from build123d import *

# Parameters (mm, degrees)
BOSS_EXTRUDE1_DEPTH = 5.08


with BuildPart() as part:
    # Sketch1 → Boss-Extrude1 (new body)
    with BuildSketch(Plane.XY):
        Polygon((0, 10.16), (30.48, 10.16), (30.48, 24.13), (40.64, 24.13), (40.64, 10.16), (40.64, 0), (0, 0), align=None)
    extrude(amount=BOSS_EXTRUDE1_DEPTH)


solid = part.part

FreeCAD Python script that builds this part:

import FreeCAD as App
import Part
import Sketcher
from FreeCAD import Vector
Q = App.Units.Quantity

doc = App.newDocument("Part")
params = doc.addObject("Spreadsheet::Sheet", "Params")
for row, (alias, value) in enumerate([
    ("sketch1_width", "1.2 in"),
    ("sketch1_width2", "1.6 in"),
    ("sketch1_height", "0.95 in"),
    ("pad1_length", "0.2 in"),
], start=1):
    params.set(f"A{row}", alias)
    params.set(f"B{row}", "=" + value)
    params.setAlias(f"B{row}", alias)

body = doc.addObject("PartDesign::Body", "Body")

sketch1 = body.newObject("Sketcher::SketchObject", "Sketch")
sketch1.AttachmentSupport = (doc.getObject("XY_Plane"), [""])
sketch1.MapMode = "FlatFace"
sketch1.addGeometry([
    Part.LineSegment(Vector(30.48, 10.16, 0), Vector(0, 10.16, 0)),
    Part.LineSegment(Vector(0, 10.16, 0), Vector(0, 0, 0)),
    Part.LineSegment(Vector(0, 0, 0), Vector(40.64, 0, 0)),
    Part.LineSegment(Vector(40.64, 0, 0), Vector(40.64, 24.13, 0)),
    Part.LineSegment(Vector(40.64, 24.13, 0), Vector(30.48, 24.13, 0)),
    Part.LineSegment(Vector(30.48, 24.13, 0), Vector(30.48, 10.16, 0)),
], False)
sketch1.addConstraint([
    Sketcher.Constraint("Coincident", 0, 2, 1, 1),
    Sketcher.Constraint("Coincident", 1, 2, 2, 1),
    Sketcher.Constraint("Coincident", 2, 2, 3, 1),
    Sketcher.Constraint("Coincident", 3, 2, 4, 1),
    Sketcher.Constraint("Coincident", 4, 2, 5, 1),
    Sketcher.Constraint("Coincident", 5, 2, 0, 1),
    Sketcher.Constraint("Horizontal", 0),
    Sketcher.Constraint("Vertical", 1),
    Sketcher.Constraint("Horizontal", 2),
    Sketcher.Constraint("Vertical", 3),
    Sketcher.Constraint("Horizontal", 4),
    Sketcher.Constraint("Vertical", 5),
    Sketcher.Constraint("Coincident", 1, 2, -1, 1),
    Sketcher.Constraint("Equal", 4, 1),
    Sketcher.Constraint("DistanceX", 0, 2, 0, 1, Q("1.2 in")),
    Sketcher.Constraint("DistanceX", 2, 1, 2, 2, Q("1.6 in")),
    Sketcher.Constraint("DistanceY", 3, 1, 3, 2, Q("0.95 in")),
])
sketch1.setExpression("Constraints[14]", "Params.sketch1_width")
sketch1.setExpression("Constraints[15]", "Params.sketch1_width2")
sketch1.setExpression("Constraints[16]", "Params.sketch1_height")
pad1 = body.newObject("PartDesign::Pad", "Pad")
pad1.Profile = sketch1
pad1.setExpression("Length", "Params.pad1_length")

doc.recompute()
